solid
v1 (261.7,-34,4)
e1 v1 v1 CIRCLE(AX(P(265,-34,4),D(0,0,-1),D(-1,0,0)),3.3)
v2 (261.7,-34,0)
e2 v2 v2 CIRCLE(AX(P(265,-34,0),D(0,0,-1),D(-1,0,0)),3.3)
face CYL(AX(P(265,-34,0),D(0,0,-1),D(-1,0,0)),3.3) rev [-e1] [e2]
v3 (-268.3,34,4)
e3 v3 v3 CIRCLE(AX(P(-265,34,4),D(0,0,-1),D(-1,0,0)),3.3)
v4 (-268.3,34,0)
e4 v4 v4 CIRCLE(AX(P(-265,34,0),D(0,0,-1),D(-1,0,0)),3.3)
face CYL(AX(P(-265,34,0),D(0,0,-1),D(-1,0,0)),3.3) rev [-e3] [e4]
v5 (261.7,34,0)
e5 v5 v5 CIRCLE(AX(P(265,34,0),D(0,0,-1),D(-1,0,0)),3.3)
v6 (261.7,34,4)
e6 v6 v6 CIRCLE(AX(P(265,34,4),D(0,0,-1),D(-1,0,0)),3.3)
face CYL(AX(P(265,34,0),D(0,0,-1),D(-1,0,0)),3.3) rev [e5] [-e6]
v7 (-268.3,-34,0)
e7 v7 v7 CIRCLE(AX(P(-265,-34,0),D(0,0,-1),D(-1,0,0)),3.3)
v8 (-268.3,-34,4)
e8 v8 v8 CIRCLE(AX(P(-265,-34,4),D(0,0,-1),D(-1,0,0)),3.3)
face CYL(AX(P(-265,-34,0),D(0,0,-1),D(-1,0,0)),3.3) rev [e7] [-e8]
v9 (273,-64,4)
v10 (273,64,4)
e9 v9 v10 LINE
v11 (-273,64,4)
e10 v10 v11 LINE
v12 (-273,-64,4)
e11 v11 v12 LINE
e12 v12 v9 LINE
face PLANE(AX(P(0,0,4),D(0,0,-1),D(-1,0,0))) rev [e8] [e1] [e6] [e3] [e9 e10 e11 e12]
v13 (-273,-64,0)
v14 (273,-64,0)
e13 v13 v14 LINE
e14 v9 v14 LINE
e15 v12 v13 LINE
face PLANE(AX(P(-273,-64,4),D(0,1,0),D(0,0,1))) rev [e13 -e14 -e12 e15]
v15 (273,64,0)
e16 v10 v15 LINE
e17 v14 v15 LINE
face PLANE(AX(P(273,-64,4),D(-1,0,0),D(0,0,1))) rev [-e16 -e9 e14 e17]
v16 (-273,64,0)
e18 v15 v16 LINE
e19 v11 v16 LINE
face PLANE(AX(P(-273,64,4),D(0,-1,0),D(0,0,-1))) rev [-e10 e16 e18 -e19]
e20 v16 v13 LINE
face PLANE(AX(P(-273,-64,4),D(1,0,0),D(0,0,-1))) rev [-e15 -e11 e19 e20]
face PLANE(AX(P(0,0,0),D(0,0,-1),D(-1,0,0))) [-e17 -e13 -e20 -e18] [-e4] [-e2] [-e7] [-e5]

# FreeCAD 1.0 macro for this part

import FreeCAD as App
import Part
import Sketcher


def add_polygon(sketch, points):
    """Adds a closed chain of lines whose ends are joined by coincident constraints."""
    first, n = sketch.GeometryCount, len(points)
    for a, b in zip(points, points[1:] + points[:1]):
        sketch.addGeometry(Part.LineSegment(App.Vector(*a, 0), App.Vector(*b, 0)), False)
    for i in range(n):
        sketch.addConstraint(Sketcher.Constraint("Coincident", first + i, 2, first + (i + 1) % n, 1))

doc = App.newDocument("Part")
params = doc.addObject("Spreadsheet::Sheet", "Params")
for row, (alias, value) in enumerate([
    ("sketch1_width", "546 mm"),
    ("sketch1_height", "128 mm"),
    ("pad1_length", "4 mm"),
    ("sketch2_diameter", "6.6 mm"),
    ("hole_diameter", "6.6 mm"),
], start=1):
    params.set(f"A{row}", alias)
    params.set(f"B{row}", "=" + value)
    params.setAlias(f"B{row}", alias)

body = doc.addObject("PartDesign::Body", "Body")

# Sketch on XY plane
sketch1 = body.newObject("Sketcher::SketchObject", "Sketch")
sketch1.AttachmentSupport = (doc.getObject("XY_Plane"), [""])
sketch1.MapMode = "FlatFace"
add_polygon(sketch1, [(-273, 64), (-273, -64), (273, -64), (273, 64)])  # lines 0-3
sketch1.addConstraint([
    Sketcher.Constraint("Vertical", 0),
    Sketcher.Constraint("Horizontal", 1),
    Sketcher.Constraint("Vertical", 2),
    Sketcher.Constraint("Horizontal", 3),
    Sketcher.Constraint("Symmetric", 0, 2, 2, 2, -1, 1),
    Sketcher.Constraint("DistanceX", 1, 1, 1, 2, 546.0),
    Sketcher.Constraint("DistanceY", 0, 2, 0, 1, 128.0),
])
sketch1.setExpression("Constraints[9]", "Params.sketch1_width")
sketch1.setExpression("Constraints[10]", "Params.sketch1_height")
pad1 = body.newObject("PartDesign::Pad", "Pad")
pad1.Profile = sketch1
pad1.setExpression("Length", "Params.pad1_length")

# Sketch on XY plane
sketch2 = body.newObject("Sketcher::SketchObject", "Sketch001")
sketch2.AttachmentSupport = (doc.getObject("XY_Plane"), [""])
sketch2.MapMode = "FlatFace"
sketch2.addGeometry([
    Part.Circle(App.Vector(-265, 34, 0), App.Vector(0, 0, 1), 3.3),
    Part.Circle(App.Vector(-265, -34, 0), App.Vector(0, 0, 1), 3.3),
    Part.Circle(App.Vector(265, -34, 0), App.Vector(0, 0, 1), 3.3),
    Part.Circle(App.Vector(265, 34, 0), App.Vector(0, 0, 1), 3.3),
], False)
sketch2.addConstraint([
    Sketcher.Constraint("Equal", 0, 1),
    Sketcher.Constraint("Equal", 1, 2),
    Sketcher.Constraint("Equal", 2, 3),
    Sketcher.Constraint("Symmetric", 0, 3, 2, 3, -1, 1),
    Sketcher.Constraint("Symmetric", 1, 3, 3, 3, -1, 1),
    Sketcher.Constraint("Symmetric", 1, 3, 2, 3, -2),
    Sketcher.Constraint("Diameter", 0, 6.6),
    Sketcher.Constraint("DistanceX", 0, 3, -1, 1, 265.0),
    Sketcher.Constraint("DistanceY", -1, 1, 0, 3, 34.0),
])
sketch2.setExpression("Constraints[6]", "Params.sketch2_diameter")
doc.recompute()
hole = body.newObject("PartDesign::Hole", "Hole")
hole.Profile = sketch2
hole.ThreadType = "None"
hole.setExpression("Diameter", "Params.hole_diameter")
hole.DepthType = "ThroughAll"
hole.Reversed = True

doc.recompute()
